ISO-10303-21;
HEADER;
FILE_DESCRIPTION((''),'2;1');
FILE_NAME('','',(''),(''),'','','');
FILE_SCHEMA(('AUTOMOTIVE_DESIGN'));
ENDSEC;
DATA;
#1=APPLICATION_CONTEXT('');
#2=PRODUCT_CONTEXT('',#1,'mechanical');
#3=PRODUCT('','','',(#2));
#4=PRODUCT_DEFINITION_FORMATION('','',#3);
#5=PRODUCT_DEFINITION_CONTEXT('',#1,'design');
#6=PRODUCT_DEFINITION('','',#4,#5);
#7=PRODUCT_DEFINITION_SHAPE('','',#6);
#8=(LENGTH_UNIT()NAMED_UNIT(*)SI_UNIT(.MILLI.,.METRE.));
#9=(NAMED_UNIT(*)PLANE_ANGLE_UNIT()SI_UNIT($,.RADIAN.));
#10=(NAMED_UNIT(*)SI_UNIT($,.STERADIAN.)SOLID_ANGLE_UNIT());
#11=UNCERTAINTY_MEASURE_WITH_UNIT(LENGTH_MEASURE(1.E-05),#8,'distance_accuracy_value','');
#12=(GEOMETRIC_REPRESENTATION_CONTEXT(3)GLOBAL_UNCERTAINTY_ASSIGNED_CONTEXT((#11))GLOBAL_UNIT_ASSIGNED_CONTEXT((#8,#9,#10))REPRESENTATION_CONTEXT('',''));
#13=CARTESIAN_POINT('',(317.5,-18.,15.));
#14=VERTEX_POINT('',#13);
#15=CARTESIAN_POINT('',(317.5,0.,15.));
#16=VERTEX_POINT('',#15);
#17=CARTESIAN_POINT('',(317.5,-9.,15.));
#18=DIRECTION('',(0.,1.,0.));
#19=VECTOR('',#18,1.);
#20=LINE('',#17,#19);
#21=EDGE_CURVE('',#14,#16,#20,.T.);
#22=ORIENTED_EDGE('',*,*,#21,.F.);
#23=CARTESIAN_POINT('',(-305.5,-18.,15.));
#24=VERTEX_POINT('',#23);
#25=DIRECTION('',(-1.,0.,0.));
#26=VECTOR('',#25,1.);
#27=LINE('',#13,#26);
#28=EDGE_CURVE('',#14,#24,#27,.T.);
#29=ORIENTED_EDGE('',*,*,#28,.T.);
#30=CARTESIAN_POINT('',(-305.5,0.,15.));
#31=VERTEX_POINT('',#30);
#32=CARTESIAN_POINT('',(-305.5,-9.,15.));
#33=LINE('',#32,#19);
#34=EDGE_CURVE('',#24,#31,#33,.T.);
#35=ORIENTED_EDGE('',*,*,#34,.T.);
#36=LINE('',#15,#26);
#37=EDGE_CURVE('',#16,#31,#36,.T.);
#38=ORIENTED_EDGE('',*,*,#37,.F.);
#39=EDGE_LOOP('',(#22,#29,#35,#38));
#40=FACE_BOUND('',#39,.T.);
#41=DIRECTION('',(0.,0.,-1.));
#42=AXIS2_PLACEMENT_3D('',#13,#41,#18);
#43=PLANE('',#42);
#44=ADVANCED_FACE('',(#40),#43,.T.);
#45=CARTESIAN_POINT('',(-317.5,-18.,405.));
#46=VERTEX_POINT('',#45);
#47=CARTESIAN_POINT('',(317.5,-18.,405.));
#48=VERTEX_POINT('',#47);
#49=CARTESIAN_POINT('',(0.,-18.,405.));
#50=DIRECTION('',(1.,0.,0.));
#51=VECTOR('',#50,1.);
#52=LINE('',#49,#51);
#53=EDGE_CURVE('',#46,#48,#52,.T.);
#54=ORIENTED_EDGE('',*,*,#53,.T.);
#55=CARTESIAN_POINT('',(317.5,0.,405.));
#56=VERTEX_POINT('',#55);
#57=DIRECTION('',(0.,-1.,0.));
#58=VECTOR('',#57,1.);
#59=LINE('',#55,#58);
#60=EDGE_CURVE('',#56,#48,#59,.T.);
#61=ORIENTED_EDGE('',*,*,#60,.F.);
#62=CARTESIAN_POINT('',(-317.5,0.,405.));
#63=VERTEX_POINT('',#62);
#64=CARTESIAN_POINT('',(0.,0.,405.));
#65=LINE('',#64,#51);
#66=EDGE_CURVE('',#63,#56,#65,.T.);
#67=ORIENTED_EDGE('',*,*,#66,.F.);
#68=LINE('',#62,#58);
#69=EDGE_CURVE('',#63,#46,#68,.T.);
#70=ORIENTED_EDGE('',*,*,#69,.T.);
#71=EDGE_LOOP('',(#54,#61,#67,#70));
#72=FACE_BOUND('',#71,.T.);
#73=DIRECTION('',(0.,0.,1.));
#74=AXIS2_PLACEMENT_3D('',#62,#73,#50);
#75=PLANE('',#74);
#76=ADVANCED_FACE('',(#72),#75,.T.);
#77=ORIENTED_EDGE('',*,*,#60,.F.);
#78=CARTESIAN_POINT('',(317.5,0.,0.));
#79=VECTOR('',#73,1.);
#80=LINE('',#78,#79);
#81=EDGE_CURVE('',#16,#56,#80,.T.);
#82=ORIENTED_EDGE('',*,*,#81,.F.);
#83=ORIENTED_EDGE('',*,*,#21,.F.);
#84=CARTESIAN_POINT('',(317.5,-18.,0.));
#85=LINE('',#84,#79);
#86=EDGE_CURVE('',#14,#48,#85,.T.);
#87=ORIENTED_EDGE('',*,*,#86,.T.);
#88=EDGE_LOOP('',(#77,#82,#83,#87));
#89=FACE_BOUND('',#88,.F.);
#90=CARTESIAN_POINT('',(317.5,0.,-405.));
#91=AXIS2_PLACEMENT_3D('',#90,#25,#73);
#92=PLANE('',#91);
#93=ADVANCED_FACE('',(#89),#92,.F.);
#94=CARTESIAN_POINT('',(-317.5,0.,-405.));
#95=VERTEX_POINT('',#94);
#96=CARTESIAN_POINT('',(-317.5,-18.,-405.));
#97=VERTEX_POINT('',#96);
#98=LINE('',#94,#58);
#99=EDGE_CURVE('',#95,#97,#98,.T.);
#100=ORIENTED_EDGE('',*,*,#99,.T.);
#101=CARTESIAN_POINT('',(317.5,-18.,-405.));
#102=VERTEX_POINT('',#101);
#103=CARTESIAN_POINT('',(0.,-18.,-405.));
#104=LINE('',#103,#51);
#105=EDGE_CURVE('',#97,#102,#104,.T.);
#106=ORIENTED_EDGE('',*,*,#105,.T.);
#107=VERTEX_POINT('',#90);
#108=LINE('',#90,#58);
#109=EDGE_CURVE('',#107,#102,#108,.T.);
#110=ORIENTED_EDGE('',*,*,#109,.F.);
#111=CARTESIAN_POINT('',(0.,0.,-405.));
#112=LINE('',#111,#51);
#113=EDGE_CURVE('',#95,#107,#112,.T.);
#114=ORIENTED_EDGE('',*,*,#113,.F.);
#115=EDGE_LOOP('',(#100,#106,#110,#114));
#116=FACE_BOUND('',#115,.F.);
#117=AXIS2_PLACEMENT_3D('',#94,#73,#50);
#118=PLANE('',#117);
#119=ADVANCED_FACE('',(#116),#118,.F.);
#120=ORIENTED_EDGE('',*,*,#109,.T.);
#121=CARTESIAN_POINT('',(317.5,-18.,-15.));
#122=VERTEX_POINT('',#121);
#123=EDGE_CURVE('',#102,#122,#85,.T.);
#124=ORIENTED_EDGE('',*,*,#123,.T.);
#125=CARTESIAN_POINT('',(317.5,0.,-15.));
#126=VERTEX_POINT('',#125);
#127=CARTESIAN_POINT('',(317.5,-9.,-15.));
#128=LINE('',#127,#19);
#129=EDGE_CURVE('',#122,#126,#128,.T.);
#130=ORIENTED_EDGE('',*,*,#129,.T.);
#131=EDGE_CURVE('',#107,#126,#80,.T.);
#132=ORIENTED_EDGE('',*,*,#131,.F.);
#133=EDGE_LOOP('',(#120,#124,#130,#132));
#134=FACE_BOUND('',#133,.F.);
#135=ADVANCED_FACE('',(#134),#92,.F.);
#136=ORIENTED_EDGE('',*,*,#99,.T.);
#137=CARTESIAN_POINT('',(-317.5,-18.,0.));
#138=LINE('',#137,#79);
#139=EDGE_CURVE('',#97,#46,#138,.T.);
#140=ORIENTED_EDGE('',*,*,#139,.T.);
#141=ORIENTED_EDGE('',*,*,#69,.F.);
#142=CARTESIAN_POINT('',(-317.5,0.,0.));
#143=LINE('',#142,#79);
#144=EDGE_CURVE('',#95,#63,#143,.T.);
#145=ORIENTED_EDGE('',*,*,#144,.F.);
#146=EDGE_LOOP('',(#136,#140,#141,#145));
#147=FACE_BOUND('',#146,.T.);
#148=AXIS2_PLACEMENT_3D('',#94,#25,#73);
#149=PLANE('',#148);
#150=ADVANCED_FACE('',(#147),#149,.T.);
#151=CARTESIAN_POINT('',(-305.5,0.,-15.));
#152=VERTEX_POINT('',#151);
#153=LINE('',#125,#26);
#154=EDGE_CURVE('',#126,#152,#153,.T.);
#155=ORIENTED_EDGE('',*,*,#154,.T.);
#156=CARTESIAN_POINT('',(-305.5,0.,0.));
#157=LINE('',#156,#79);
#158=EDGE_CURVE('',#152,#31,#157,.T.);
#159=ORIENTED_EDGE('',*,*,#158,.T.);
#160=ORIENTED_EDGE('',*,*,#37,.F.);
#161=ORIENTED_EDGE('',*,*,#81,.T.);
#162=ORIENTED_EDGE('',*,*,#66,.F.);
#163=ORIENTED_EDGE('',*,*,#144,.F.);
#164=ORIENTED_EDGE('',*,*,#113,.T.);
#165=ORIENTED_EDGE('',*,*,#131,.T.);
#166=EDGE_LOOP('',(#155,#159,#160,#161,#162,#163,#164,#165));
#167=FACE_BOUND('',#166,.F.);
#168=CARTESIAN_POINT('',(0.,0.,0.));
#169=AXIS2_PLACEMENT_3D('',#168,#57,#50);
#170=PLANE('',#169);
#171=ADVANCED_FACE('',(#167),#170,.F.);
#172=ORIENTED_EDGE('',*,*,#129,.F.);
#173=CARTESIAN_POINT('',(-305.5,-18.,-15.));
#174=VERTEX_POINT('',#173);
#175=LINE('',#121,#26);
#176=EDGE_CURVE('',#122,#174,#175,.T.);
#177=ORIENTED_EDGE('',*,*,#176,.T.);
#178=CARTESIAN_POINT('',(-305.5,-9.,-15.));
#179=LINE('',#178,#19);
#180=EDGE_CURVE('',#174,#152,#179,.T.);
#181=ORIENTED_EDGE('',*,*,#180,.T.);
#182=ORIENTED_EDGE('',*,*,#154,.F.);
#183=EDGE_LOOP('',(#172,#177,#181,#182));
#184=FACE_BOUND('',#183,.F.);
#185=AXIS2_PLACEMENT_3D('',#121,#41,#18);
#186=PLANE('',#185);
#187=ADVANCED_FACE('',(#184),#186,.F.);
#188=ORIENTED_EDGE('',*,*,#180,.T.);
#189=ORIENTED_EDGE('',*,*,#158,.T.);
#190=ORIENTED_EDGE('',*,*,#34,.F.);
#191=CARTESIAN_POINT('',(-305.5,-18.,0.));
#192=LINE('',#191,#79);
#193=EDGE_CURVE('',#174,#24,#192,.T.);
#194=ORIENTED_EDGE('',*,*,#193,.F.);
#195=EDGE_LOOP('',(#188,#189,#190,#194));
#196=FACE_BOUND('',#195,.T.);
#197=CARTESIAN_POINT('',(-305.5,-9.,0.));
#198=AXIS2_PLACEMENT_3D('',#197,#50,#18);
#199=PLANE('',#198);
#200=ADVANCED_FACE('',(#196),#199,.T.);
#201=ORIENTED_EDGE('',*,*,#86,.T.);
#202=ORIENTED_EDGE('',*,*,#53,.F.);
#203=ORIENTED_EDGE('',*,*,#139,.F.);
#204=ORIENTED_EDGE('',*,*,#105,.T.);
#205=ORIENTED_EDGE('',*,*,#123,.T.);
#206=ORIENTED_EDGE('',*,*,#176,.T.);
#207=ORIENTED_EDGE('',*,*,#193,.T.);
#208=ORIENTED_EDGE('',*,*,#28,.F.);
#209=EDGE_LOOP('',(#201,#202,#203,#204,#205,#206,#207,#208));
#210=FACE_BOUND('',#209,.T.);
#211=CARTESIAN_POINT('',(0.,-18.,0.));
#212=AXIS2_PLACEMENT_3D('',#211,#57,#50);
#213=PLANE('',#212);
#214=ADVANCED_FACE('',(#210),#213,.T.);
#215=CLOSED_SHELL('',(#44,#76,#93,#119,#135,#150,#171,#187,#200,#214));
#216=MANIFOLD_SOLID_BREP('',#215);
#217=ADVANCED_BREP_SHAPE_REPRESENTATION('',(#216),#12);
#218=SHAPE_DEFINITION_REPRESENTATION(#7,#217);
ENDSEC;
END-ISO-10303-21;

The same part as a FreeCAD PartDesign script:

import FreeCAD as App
import Part
import Sketcher
Q = App.Units.Quantity


def add_polygon(sketch, points):
    """Adds a closed chain of lines whose ends are joined by coincident constraints."""
    first, n = sketch.GeometryCount, len(points)
    for a, b in zip(points, points[1:] + points[:1]):
        sketch.addGeometry(Part.LineSegment(App.Vector(*a, 0), App.Vector(*b, 0)), False)
    for i in range(n):
        sketch.addConstraint(Sketcher.Constraint("Coincident", first + i, 2, first + (i + 1) % n, 1))

doc = App.newDocument("Part")
body = doc.addObject("PartDesign::Body", "Body")

sketch1 = doc.addObject("Sketcher::SketchObject", "Sketch")
body.addObject(sketch1)
sketch1.AttachmentSupport = (doc.XZ_Plane, [""])
sketch1.MapMode = "FlatFace"
add_polygon(sketch1, [(-317.5, 405), (-317.5, -405), (317.5, -405), (317.5, 405)])
sketch1.addConstraint([
    Sketcher.Constraint("Vertical", 0),
    Sketcher.Constraint("Horizontal", 1),
    Sketcher.Constraint("Vertical", 2),
    Sketcher.Constraint("Horizontal", 3),
    Sketcher.Constraint("Symmetric", 0, 2, 2, 2, -1, 1),
    Sketcher.Constraint("DistanceX", 1, 1, 1, 2, Q("635 mm")),
    Sketcher.Constraint("DistanceY", 0, 2, 0, 1, Q("810 mm")),
])
pad1 = doc.addObject("PartDesign::Pad", "Pad")
body.addObject(pad1)
pad1.Profile = sketch1
pad1.Length = 18

sketch2 = doc.addObject("Sketcher::SketchObject", "Sketch001")
body.addObject(sketch2)
sketch2.AttachmentSupport = (doc.YZ_Plane, [""])
sketch2.MapMode = "FlatFace"
sketch2.AttachmentOffset = App.Placement(App.Vector(0, 0, 317.5), App.Rotation())
add_polygon(sketch2, [(-18, 15), (-18, -15), (0, -15), (0, 15)])
sketch2.addConstraint([
    Sketcher.Constraint("Vertical", 0),
    Sketcher.Constraint("Horizontal", 1),
    Sketcher.Constraint("Vertical", 2),
    Sketcher.Constraint("Horizontal", 3),
    Sketcher.Constraint("Symmetric", 1, 2, 2, 2, -1, 1),
    Sketcher.Constraint("DistanceX", 1, 1, 1, 2, Q("18 mm")),
    Sketcher.Constraint("DistanceY", 0, 2, 0, 1, Q("30 mm")),
])
pocket1 = doc.addObject("PartDesign::Pocket", "Pocket")
body.addObject(pocket1)
pocket1.Profile = sketch2
pocket1.Length = 623

doc.recompute()
